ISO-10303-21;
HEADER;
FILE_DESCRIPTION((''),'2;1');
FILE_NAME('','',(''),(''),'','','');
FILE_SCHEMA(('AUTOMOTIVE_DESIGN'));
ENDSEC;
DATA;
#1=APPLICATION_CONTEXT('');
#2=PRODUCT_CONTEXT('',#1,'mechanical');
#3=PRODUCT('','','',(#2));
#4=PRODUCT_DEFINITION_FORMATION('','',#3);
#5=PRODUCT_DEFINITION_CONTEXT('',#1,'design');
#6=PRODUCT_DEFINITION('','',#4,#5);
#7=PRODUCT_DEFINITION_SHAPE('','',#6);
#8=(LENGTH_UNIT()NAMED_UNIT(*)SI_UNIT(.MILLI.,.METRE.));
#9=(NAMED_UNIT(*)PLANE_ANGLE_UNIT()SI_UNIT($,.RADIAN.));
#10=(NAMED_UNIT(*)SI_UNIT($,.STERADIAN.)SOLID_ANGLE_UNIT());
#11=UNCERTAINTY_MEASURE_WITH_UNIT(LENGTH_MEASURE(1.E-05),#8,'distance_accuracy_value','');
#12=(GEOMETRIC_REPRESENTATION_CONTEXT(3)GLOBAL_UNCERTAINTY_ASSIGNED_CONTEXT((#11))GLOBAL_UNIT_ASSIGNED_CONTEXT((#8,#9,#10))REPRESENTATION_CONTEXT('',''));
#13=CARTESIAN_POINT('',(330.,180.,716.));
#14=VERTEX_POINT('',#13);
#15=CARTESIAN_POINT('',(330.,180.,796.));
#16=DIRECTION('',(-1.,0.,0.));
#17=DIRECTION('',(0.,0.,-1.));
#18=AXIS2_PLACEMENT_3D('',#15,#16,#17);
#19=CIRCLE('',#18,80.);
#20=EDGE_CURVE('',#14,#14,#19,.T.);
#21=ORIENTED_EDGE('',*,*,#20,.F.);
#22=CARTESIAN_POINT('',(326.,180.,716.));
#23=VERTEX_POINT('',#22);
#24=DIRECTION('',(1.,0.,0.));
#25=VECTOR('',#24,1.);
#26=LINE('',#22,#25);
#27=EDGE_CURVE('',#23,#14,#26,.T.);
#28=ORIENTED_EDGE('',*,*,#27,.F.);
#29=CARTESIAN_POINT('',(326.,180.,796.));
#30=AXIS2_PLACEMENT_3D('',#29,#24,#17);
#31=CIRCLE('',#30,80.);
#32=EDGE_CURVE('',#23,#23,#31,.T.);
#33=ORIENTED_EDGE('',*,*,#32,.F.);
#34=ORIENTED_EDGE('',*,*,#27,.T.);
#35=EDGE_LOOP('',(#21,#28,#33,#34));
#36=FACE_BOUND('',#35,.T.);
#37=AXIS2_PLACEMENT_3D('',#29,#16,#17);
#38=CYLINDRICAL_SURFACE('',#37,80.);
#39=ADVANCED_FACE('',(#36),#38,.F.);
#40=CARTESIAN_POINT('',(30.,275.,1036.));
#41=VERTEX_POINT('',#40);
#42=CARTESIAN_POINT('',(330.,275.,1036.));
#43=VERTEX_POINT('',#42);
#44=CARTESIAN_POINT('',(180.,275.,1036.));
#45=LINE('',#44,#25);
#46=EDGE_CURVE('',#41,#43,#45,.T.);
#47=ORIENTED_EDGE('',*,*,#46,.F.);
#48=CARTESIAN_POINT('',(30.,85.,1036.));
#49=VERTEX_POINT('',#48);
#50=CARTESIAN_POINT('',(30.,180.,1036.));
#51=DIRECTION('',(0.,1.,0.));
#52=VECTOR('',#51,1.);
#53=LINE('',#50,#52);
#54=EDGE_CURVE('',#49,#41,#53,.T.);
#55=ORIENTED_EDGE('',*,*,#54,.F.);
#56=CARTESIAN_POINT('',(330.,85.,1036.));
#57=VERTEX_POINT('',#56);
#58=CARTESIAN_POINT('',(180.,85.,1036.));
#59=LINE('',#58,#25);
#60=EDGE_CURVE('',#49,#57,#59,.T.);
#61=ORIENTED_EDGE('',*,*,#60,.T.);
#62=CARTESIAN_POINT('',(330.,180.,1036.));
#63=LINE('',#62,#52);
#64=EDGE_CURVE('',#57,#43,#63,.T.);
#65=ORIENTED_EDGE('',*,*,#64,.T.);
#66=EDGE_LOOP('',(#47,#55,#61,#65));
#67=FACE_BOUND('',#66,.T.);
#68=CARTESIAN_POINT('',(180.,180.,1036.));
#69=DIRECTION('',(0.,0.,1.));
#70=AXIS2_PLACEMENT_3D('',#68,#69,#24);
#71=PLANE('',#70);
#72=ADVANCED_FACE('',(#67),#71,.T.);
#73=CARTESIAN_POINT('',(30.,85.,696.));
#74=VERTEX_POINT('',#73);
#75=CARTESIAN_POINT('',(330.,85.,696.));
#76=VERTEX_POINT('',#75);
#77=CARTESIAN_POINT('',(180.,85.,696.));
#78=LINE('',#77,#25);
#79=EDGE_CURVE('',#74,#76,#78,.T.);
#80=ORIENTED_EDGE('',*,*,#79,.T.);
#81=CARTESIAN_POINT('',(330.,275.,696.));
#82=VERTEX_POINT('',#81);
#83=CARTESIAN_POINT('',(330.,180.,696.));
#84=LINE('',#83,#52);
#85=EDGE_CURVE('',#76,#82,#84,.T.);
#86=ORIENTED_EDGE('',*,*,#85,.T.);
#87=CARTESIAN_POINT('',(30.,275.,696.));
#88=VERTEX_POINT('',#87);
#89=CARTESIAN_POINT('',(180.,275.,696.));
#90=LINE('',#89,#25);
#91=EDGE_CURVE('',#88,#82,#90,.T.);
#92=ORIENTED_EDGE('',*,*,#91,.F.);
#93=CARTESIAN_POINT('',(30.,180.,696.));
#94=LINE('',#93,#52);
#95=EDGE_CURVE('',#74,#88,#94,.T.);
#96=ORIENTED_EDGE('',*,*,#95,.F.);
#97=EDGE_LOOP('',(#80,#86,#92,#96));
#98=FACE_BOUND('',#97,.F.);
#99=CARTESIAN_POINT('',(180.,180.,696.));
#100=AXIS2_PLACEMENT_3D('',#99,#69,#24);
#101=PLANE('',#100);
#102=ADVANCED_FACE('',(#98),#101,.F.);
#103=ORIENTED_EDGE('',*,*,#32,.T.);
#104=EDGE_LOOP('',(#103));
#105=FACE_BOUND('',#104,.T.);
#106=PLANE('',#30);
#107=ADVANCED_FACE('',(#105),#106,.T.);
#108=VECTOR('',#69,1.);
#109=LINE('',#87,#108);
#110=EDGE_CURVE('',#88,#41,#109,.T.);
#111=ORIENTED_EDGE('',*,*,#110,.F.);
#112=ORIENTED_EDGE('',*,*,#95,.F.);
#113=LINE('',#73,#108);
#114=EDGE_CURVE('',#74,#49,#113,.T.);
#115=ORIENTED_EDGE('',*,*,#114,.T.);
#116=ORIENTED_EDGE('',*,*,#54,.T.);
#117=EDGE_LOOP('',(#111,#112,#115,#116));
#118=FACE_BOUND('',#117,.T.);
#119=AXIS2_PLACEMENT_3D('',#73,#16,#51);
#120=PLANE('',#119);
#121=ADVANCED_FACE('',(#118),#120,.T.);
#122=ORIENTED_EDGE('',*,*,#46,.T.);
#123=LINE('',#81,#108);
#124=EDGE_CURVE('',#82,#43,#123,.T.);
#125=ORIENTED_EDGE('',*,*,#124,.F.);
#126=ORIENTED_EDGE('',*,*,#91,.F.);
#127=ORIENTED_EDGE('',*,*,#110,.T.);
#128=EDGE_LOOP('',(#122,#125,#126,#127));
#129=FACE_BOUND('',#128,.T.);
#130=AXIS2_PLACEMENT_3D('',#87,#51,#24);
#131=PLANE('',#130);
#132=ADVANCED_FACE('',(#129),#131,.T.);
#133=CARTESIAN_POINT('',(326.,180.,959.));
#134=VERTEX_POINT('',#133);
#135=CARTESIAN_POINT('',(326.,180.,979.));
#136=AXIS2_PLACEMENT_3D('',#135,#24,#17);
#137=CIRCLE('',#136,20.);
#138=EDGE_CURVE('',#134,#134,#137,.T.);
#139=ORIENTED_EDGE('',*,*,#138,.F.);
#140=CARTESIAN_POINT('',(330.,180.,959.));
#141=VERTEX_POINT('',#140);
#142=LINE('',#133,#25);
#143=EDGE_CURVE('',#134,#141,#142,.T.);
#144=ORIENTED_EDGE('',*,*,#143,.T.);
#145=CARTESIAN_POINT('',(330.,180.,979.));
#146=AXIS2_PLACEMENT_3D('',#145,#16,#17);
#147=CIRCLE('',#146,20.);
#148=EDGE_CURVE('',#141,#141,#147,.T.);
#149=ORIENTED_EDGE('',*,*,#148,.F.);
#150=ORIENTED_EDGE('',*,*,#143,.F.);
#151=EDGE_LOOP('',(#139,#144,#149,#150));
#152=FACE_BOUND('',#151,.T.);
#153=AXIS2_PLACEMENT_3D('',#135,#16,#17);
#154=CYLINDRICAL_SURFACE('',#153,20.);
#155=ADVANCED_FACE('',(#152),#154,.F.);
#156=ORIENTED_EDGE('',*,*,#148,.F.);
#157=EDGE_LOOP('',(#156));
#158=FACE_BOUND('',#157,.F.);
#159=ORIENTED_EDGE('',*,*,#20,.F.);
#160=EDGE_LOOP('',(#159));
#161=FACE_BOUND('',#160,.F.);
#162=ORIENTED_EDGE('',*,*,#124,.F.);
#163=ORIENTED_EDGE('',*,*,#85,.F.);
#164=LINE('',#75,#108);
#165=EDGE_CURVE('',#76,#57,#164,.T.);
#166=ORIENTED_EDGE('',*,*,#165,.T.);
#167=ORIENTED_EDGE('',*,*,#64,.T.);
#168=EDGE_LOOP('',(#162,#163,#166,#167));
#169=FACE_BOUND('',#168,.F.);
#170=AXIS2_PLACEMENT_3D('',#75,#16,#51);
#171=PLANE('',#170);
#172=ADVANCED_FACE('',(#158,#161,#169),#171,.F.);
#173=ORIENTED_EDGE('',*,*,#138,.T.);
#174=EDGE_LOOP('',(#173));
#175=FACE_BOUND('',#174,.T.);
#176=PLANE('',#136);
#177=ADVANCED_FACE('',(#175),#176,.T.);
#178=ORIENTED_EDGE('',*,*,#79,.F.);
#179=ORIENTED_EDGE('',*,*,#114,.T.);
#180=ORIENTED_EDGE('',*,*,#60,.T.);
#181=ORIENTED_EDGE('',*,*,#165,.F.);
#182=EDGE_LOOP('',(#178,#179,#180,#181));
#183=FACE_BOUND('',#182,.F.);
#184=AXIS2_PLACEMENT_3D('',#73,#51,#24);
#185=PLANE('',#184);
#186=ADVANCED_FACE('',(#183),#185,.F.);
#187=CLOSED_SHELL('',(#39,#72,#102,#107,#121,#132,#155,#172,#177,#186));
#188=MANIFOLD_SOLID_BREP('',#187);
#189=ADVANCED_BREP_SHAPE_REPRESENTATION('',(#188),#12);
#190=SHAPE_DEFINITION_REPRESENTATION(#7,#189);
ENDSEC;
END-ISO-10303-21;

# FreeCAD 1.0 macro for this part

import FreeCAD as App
import Part
import Sketcher

V = App.Vector
Q = App.Units.Quantity


def add_polygon(sketch, points):
    """Adds a closed chain of lines whose ends are joined by coincident constraints."""
    first, n = sketch.GeometryCount, len(points)
    for a, b in zip(points, points[1:] + points[:1]):
        sketch.addGeometry(Part.LineSegment(App.Vector(*a, 0), App.Vector(*b, 0)), False)
    for i in range(n):
        sketch.addConstraint(Sketcher.Constraint("Coincident", first + i, 2, first + (i + 1) % n, 1))

doc = App.newDocument("Part")
params = doc.addObject("Spreadsheet::Sheet", "Params")
for row, (alias, value) in enumerate([
    ("sketch1_diameter", "40 mm"),
    ("pad1_length", "10 mm"),
    ("sketch2_diameter", "160 mm"),
    ("pad2_length", "10 mm"),
    ("sketch3_width", "300 mm"),
    ("sketch3_height", "190 mm"),
    ("pad3_length", "340 mm"),
], start=1):
    params.set(f"A{row}", alias)
    params.set(f"B{row}", "=" + value)
    params.setAlias(f"B{row}", alias)

body = doc.addObject("PartDesign::Body", "Body")

sketch1 = doc.addObject("Sketcher::SketchObject", "Sketch")
body.addObject(sketch1)
sketch1.AttachmentSupport = (doc.YZ_Plane, [""])
sketch1.MapMode = "FlatFace"
sketch1.AttachmentOffset = App.Placement(V(0, 0, 296), App.Rotation())
sketch1.addGeometry(Part.Circle(V(95, 1133, 0), V(0, 0, 1), 20), False)
sketch1.addConstraint([
    Sketcher.Constraint("Diameter", 0, Q("40 mm")),
    Sketcher.Constraint("DistanceX", -1, 1, 0, 3, Q("95 mm")),
    Sketcher.Constraint("DistanceY", -1, 1, 0, 3, Q("1133 mm")),
])
sketch1.setExpression("Constraints[0]", "Params.sketch1_diameter")
pad1 = doc.addObject("PartDesign::Pad", "Pad")
body.addObject(pad1)
pad1.Profile = sketch1
pad1.setExpression("Length", "Params.pad1_length")
body2 = doc.addObject("PartDesign::Body", "Body001")

sketch2 = doc.addObject("Sketcher::SketchObject", "Sketch001")
body2.addObject(sketch2)
sketch2.AttachmentSupport = (doc.getObject("YZ_Plane001"), [""])
sketch2.MapMode = "FlatFace"
sketch2.AttachmentOffset = App.Placement(V(0, 0, 296), App.Rotation())
sketch2.addGeometry(Part.Circle(V(95, 950, 0), V(0, 0, 1), 80), False)
sketch2.addConstraint([
    Sketcher.Constraint("Diameter", 0, Q("160 mm")),
    Sketcher.Constraint("DistanceX", -1, 1, 0, 3, Q("95 mm")),
    Sketcher.Constraint("DistanceY", -1, 1, 0, 3, Q("950 mm")),
])
sketch2.setExpression("Constraints[0]", "Params.sketch2_diameter")
pad2 = doc.addObject("PartDesign::Pad", "Pad001")
body2.addObject(pad2)
pad2.Profile = sketch2
pad2.setExpression("Length", "Params.pad2_length")
body3 = doc.addObject("PartDesign::Body", "Body002")

sketch3 = doc.addObject("Sketcher::SketchObject", "Sketch002")
body3.addObject(sketch3)
sketch3.AttachmentSupport = (doc.getObject("XY_Plane002"), [""])
sketch3.MapMode = "FlatFace"
sketch3.AttachmentOffset = App.Placement(V(0, 0, 850), App.Rotation())
add_polygon(sketch3, [(0, 190), (0, 0), (300, 0), (300, 190)])
sketch3.addConstraint([
    Sketcher.Constraint("Vertical", 0),
    Sketcher.Constraint("Horizontal", 1),
    Sketcher.Constraint("Vertical", 2),
    Sketcher.Constraint("Horizontal", 3),
    Sketcher.Constraint("Coincident", 0, 2, -1, 1),
    Sketcher.Constraint("DistanceX", 1, 1, 1, 2, Q("300 mm")),
    Sketcher.Constraint("DistanceY", 0, 2, 0, 1, Q("190 mm")),
])
sketch3.setExpression("Constraints[9]", "Params.sketch3_width")
sketch3.setExpression("Constraints[10]", "Params.sketch3_height")
pad3 = doc.addObject("PartDesign::Pad", "Pad002")
body3.addObject(pad3)
pad3.Profile = sketch3
pad3.setExpression("Length", "Params.pad3_length")
doc.recompute()

boolean = doc.addObject("PartDesign::Boolean", "Boolean")
body3.addObject(boolean)
boolean.Type = "Cut"
boolean.addObjects([body2])
doc.recompute()

boolean2 = doc.addObject("PartDesign::Boolean", "Boolean001")
body3.addObject(boolean2)
boolean2.Type = "Cut"
boolean2.addObjects([body])
body4 = doc.addObject("PartDesign::Body", "Body003")
doc.recompute()

body3.Placement = App.Placement(V(30, 85, -154), App.Rotation(V(0, 0, 1), 0))
boolean3 = doc.addObject("PartDesign::Boolean", "Boolean002")
body4.addObject(boolean3)
boolean3.Type = "Fuse"
boolean3.addObjects([body3])

doc.recompute()
